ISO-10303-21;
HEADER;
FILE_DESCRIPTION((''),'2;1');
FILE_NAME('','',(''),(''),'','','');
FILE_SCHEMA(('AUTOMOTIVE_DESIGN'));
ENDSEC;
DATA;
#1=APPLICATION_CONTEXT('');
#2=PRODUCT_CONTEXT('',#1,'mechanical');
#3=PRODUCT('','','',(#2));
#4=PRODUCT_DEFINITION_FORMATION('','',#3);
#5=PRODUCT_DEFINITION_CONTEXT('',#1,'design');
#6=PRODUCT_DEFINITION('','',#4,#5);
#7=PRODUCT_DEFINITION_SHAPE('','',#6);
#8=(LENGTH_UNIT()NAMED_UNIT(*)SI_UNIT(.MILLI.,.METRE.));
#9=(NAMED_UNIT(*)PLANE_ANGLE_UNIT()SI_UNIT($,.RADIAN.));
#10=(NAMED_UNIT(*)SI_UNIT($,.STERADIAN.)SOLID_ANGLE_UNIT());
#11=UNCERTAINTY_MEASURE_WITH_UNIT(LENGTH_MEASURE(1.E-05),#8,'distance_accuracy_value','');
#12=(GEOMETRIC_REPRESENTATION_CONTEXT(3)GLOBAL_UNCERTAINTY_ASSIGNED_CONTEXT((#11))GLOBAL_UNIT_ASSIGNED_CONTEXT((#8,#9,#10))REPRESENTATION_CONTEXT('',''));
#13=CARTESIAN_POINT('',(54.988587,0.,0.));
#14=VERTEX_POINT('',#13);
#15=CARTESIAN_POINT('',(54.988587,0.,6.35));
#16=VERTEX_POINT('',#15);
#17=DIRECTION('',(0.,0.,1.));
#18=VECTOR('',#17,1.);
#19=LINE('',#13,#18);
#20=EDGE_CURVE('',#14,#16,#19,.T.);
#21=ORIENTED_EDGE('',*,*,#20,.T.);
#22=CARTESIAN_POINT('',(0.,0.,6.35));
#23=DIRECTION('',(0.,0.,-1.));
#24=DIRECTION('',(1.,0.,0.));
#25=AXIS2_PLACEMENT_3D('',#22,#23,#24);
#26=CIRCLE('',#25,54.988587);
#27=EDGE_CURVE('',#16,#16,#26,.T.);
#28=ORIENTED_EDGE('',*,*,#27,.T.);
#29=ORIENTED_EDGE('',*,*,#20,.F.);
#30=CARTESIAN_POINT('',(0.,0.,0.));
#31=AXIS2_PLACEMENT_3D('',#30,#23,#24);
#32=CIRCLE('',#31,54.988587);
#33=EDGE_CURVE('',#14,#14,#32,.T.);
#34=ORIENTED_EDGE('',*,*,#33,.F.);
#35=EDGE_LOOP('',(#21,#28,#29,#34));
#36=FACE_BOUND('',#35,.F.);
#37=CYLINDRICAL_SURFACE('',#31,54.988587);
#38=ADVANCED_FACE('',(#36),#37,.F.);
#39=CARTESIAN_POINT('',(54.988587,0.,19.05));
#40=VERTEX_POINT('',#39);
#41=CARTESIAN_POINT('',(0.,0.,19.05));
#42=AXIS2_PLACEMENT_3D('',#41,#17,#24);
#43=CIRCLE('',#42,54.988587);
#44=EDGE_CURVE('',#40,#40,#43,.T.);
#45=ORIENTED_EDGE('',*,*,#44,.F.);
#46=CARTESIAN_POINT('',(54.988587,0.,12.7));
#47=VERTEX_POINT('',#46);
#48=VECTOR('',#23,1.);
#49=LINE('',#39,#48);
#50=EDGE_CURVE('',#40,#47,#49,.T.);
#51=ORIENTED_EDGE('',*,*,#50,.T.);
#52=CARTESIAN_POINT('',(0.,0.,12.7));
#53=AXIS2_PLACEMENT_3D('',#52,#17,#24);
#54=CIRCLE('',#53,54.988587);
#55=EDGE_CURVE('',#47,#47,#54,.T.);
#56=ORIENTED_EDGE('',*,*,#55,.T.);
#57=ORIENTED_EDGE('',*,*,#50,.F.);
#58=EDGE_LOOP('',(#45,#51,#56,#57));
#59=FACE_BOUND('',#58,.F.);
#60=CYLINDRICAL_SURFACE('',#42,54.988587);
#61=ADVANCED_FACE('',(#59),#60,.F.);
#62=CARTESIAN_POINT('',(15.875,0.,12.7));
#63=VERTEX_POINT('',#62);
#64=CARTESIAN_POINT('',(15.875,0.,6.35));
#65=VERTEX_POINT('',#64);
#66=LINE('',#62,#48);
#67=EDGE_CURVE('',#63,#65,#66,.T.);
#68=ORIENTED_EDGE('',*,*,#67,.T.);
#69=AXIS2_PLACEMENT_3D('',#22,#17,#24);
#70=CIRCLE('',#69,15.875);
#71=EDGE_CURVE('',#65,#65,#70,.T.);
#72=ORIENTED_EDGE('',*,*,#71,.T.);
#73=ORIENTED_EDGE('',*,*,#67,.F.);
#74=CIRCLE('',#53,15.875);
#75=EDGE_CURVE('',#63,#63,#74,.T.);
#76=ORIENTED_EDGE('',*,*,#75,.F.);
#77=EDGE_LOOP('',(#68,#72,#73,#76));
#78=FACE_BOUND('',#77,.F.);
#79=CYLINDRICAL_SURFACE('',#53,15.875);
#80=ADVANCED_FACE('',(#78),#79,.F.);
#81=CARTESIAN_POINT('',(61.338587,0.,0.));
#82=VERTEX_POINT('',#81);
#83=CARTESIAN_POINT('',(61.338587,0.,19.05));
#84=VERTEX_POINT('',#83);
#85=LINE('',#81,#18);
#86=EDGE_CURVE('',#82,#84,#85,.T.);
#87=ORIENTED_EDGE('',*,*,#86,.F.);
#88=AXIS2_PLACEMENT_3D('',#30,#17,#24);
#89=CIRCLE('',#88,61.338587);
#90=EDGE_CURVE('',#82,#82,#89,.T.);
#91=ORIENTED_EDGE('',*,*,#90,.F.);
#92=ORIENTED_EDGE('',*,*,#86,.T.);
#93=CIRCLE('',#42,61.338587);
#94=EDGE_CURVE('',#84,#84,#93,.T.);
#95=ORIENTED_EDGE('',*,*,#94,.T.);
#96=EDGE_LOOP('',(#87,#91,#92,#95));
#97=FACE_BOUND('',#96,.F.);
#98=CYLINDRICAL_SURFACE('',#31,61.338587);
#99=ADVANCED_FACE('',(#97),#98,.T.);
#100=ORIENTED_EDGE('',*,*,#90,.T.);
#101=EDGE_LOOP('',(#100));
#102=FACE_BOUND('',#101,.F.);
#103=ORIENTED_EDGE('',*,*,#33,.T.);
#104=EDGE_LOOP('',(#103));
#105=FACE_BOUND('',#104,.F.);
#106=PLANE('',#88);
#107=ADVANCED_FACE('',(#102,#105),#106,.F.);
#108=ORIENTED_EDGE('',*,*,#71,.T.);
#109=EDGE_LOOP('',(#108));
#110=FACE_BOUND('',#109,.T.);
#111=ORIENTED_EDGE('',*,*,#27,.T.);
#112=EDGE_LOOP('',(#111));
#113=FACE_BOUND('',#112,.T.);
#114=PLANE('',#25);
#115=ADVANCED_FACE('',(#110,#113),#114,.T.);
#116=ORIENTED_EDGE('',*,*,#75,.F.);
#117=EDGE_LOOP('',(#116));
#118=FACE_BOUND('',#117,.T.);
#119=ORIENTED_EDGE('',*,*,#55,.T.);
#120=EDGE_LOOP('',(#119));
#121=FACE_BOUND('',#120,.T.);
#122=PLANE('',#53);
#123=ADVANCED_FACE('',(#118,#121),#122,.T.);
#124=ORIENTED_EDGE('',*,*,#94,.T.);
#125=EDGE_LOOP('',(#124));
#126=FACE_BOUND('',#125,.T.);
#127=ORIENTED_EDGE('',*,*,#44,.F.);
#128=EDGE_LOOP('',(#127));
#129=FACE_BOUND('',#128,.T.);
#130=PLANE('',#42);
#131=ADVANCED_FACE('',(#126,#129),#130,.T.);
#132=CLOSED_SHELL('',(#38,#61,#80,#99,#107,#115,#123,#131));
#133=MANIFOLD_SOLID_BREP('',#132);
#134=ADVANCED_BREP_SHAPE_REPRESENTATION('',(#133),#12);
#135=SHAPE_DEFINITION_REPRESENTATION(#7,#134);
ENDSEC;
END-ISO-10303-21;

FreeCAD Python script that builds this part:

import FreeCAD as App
import Part
import Sketcher
from FreeCAD import Vector
Q = App.Units.Quantity

doc = App.newDocument("Part")
body = doc.addObject("PartDesign::Body", "Body")

sketch1 = body.newObject("Sketcher::SketchObject", "Sketch")
sketch1.AttachmentSupport = (doc.getObject("XY_Plane"), [""])
sketch1.MapMode = "FlatFace"
sketch1.addGeometry(Part.Circle(Vector(0, 0, 0), Vector(0, 0, 1), 61.338587), False)
sketch1.addConstraint([
    Sketcher.Constraint("Coincident", 0, 3, -1, 1),
    Sketcher.Constraint("Diameter", 0, Q("122.677174 mm")),
])
pad1 = body.newObject("PartDesign::Pad", "Pad")
pad1.Profile = sketch1
pad1.Length = Q("0.75 in")

sketch2 = body.newObject("Sketcher::SketchObject", "Sketch001")
sketch2.AttachmentSupport = (doc.getObject("XY_Plane"), [""])
sketch2.MapMode = "FlatFace"
sketch2.addGeometry(Part.Circle(Vector(0, 0, 0), Vector(0, 0, 1), 54.988587), False)
sketch2.addConstraint([
    Sketcher.Constraint("Coincident", 0, 3, -1, 1),
    Sketcher.Constraint("Diameter", 0, Q("109.977174 mm")),
])
pocket1 = body.newObject("PartDesign::Pocket", "Pocket")
pocket1.Profile = sketch2
pocket1.Length = Q("0.25 in")
pocket1.Reversed = True

sketch3 = body.newObject("Sketcher::SketchObject", "Sketch002")
sketch3.AttachmentSupport = (doc.getObject("XY_Plane"), [""])
sketch3.MapMode = "FlatFace"
sketch3.AttachmentOffset = App.Placement(Vector(0, 0, 0.75 * 25.4), App.Rotation())
sketch3.addGeometry(Part.Circle(Vector(0, 0, 0), Vector(0, 0, 1), 54.988587), False)
sketch3.addConstraint([
    Sketcher.Constraint("Coincident", 0, 3, -1, 1),
    Sketcher.Constraint("Diameter", 0, Q("109.977174 mm")),
])
pocket2 = body.newObject("PartDesign::Pocket", "Pocket001")
pocket2.Profile = sketch3
pocket2.Length = Q("0.25 in")

sketch4 = body.newObject("Sketcher::SketchObject", "Sketch003")
sketch4.AttachmentSupport = (doc.getObject("XY_Plane"), [""])
sketch4.MapMode = "FlatFace"
sketch4.AttachmentOffset = App.Placement(Vector(0, 0, 0.5 * 25.4), App.Rotation())
sketch4.addGeometry(Part.Circle(Vector(0, 0, 0), Vector(0, 0, 1), 15.875), False)
sketch4.addConstraint([
    Sketcher.Constraint("Coincident", 0, 3, -1, 1),
    Sketcher.Constraint("Diameter", 0, Q("1.25 in")),
])
pocket3 = body.newObject("PartDesign::Pocket", "Pocket002")
pocket3.Profile = sketch4
pocket3.Type = "ThroughAll"

doc.recompute()
